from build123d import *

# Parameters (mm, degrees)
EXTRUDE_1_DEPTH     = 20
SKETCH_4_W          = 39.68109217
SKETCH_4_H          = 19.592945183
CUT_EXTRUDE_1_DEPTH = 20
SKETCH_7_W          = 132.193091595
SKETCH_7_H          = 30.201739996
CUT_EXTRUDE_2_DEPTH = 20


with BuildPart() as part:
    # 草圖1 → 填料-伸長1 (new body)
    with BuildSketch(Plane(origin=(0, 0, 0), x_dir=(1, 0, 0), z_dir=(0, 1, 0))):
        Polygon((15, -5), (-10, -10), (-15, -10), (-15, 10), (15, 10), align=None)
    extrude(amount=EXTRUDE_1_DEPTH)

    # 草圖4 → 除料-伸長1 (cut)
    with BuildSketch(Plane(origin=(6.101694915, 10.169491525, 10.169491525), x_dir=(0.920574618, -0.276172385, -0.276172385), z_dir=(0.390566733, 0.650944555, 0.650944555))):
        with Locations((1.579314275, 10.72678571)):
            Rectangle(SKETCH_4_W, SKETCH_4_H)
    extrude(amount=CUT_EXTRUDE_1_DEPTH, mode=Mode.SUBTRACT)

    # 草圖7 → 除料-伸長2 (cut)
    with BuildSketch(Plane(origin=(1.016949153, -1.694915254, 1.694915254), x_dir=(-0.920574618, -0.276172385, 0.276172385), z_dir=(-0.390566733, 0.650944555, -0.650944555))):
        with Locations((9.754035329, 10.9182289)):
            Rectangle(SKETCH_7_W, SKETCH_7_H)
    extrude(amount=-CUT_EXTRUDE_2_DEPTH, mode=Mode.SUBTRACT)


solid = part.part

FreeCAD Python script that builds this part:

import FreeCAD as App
import Part
import Sketcher
from FreeCAD import Vector


def add_polygon(sketch, points):
    """Adds a closed chain of lines whose ends are joined by coincident constraints."""
    first, n = sketch.GeometryCount, len(points)
    for a, b in zip(points, points[1:] + points[:1]):
        sketch.addGeometry(Part.LineSegment(App.Vector(*a, 0), App.Vector(*b, 0)), False)
    for i in range(n):
        sketch.addConstraint(Sketcher.Constraint("Coincident", first + i, 2, first + (i + 1) % n, 1))

doc = App.newDocument("Part")
body = doc.addObject("PartDesign::Body", "Body")

# Sketch on XZ plane
sketch1 = body.newObject("Sketcher::SketchObject", "Sketch")
sketch1.AttachmentSupport = (doc.getObject("XZ_Plane"), [""])
sketch1.MapMode = "FlatFace"
add_polygon(sketch1, [(-10, 10), (15, 5), (15, -10), (-15, -10), (-15, 10)])  # lines 0-4
sketch1.addConstraint([
    Sketcher.Constraint("Vertical", 1),
    Sketcher.Constraint("Horizontal", 2),
    Sketcher.Constraint("Vertical", 3),
    Sketcher.Constraint("Horizontal", 4),
    Sketcher.Constraint("Symmetric", 1, 2, 3, 2, -1, 1),
    Sketcher.Constraint("DistanceX", 2, 2, 2, 1, 30.0),
    Sketcher.Constraint("DistanceX", 4, 1, 4, 2, 5.0),
    Sketcher.Constraint("DistanceY", 1, 2, 1, 1, 15.0),
    Sketcher.Constraint("DistanceY", 3, 1, 3, 2, 20.0),
])
pad1 = body.newObject("PartDesign::Pad", "Pad")
pad1.Profile = sketch1
pad1.Length = 20
pad1.Reversed = True

# Sketch on an angled plane
sketch2 = body.newObject("Sketcher::SketchObject", "Sketch001")
sketch2.Placement = App.Placement(Vector(6.101695, 10.169492, 10.169492), App.Rotation(Vector(0.920574618, -0.276172385, -0.276172385), Vector(0, 0.707106781, -0.707106781), Vector(0.390566733, 0.650944555, 0.650944555), "ZXY"))
add_polygon(sketch2, [(-18.261232, 20.523258), (-18.261232, 0.930313), (21.41986, 0.930313), (21.41986, 20.523258)])  # lines 0-3
sketch2.addConstraint([
    Sketcher.Constraint("Vertical", 0),
    Sketcher.Constraint("Horizontal", 1),
    Sketcher.Constraint("Vertical", 2),
    Sketcher.Constraint("Horizontal", 3),
    Sketcher.Constraint("DistanceX", 1, 1, 1, 2, 39.681092),
    Sketcher.Constraint("DistanceY", 0, 2, 0, 1, 19.592945),
    Sketcher.Constraint("DistanceX", 0, 2, -1, 1, 18.261232),
    Sketcher.Constraint("DistanceY", -1, 1, 2, 2, 20.523258),
])
pocket1 = body.newObject("PartDesign::Pocket", "Pocket")
pocket1.Profile = sketch2
pocket1.Length = 20
pocket1.Reversed = True

# Sketch on an angled plane
sketch3 = body.newObject("Sketcher::SketchObject", "Sketch002")
sketch3.Placement = App.Placement(Vector(1.016949, -1.694915, 1.694915), App.Rotation(Vector(-0.920574618, -0.276172385, 0.276172385), Vector(0, 0.707106781, 0.707106781), Vector(-0.390566733, 0.650944555, -0.650944555), "ZXY"))
add_polygon(sketch3, [(-56.34251, 26.019099), (-56.34251, -4.182641), (75.850581, -4.182641), (75.850581, 26.019099)])  # lines 0-3
sketch3.addConstraint([
    Sketcher.Constraint("Vertical", 0),
    Sketcher.Constraint("Horizontal", 1),
    Sketcher.Constraint("Vertical", 2),
    Sketcher.Constraint("Horizontal", 3),
    Sketcher.Constraint("DistanceX", 1, 1, 1, 2, 132.193092),
    Sketcher.Constraint("DistanceY", 0, 2, 0, 1, 30.20174),
    Sketcher.Constraint("DistanceY", -1, 1, 2, 2, 26.019099),
    Sketcher.Constraint("DistanceX", 0, 2, -1, 1, 56.34251),
])
pocket2 = body.newObject("PartDesign::Pocket", "Pocket001")
pocket2.Profile = sketch3
pocket2.Length = 20

doc.recompute()
